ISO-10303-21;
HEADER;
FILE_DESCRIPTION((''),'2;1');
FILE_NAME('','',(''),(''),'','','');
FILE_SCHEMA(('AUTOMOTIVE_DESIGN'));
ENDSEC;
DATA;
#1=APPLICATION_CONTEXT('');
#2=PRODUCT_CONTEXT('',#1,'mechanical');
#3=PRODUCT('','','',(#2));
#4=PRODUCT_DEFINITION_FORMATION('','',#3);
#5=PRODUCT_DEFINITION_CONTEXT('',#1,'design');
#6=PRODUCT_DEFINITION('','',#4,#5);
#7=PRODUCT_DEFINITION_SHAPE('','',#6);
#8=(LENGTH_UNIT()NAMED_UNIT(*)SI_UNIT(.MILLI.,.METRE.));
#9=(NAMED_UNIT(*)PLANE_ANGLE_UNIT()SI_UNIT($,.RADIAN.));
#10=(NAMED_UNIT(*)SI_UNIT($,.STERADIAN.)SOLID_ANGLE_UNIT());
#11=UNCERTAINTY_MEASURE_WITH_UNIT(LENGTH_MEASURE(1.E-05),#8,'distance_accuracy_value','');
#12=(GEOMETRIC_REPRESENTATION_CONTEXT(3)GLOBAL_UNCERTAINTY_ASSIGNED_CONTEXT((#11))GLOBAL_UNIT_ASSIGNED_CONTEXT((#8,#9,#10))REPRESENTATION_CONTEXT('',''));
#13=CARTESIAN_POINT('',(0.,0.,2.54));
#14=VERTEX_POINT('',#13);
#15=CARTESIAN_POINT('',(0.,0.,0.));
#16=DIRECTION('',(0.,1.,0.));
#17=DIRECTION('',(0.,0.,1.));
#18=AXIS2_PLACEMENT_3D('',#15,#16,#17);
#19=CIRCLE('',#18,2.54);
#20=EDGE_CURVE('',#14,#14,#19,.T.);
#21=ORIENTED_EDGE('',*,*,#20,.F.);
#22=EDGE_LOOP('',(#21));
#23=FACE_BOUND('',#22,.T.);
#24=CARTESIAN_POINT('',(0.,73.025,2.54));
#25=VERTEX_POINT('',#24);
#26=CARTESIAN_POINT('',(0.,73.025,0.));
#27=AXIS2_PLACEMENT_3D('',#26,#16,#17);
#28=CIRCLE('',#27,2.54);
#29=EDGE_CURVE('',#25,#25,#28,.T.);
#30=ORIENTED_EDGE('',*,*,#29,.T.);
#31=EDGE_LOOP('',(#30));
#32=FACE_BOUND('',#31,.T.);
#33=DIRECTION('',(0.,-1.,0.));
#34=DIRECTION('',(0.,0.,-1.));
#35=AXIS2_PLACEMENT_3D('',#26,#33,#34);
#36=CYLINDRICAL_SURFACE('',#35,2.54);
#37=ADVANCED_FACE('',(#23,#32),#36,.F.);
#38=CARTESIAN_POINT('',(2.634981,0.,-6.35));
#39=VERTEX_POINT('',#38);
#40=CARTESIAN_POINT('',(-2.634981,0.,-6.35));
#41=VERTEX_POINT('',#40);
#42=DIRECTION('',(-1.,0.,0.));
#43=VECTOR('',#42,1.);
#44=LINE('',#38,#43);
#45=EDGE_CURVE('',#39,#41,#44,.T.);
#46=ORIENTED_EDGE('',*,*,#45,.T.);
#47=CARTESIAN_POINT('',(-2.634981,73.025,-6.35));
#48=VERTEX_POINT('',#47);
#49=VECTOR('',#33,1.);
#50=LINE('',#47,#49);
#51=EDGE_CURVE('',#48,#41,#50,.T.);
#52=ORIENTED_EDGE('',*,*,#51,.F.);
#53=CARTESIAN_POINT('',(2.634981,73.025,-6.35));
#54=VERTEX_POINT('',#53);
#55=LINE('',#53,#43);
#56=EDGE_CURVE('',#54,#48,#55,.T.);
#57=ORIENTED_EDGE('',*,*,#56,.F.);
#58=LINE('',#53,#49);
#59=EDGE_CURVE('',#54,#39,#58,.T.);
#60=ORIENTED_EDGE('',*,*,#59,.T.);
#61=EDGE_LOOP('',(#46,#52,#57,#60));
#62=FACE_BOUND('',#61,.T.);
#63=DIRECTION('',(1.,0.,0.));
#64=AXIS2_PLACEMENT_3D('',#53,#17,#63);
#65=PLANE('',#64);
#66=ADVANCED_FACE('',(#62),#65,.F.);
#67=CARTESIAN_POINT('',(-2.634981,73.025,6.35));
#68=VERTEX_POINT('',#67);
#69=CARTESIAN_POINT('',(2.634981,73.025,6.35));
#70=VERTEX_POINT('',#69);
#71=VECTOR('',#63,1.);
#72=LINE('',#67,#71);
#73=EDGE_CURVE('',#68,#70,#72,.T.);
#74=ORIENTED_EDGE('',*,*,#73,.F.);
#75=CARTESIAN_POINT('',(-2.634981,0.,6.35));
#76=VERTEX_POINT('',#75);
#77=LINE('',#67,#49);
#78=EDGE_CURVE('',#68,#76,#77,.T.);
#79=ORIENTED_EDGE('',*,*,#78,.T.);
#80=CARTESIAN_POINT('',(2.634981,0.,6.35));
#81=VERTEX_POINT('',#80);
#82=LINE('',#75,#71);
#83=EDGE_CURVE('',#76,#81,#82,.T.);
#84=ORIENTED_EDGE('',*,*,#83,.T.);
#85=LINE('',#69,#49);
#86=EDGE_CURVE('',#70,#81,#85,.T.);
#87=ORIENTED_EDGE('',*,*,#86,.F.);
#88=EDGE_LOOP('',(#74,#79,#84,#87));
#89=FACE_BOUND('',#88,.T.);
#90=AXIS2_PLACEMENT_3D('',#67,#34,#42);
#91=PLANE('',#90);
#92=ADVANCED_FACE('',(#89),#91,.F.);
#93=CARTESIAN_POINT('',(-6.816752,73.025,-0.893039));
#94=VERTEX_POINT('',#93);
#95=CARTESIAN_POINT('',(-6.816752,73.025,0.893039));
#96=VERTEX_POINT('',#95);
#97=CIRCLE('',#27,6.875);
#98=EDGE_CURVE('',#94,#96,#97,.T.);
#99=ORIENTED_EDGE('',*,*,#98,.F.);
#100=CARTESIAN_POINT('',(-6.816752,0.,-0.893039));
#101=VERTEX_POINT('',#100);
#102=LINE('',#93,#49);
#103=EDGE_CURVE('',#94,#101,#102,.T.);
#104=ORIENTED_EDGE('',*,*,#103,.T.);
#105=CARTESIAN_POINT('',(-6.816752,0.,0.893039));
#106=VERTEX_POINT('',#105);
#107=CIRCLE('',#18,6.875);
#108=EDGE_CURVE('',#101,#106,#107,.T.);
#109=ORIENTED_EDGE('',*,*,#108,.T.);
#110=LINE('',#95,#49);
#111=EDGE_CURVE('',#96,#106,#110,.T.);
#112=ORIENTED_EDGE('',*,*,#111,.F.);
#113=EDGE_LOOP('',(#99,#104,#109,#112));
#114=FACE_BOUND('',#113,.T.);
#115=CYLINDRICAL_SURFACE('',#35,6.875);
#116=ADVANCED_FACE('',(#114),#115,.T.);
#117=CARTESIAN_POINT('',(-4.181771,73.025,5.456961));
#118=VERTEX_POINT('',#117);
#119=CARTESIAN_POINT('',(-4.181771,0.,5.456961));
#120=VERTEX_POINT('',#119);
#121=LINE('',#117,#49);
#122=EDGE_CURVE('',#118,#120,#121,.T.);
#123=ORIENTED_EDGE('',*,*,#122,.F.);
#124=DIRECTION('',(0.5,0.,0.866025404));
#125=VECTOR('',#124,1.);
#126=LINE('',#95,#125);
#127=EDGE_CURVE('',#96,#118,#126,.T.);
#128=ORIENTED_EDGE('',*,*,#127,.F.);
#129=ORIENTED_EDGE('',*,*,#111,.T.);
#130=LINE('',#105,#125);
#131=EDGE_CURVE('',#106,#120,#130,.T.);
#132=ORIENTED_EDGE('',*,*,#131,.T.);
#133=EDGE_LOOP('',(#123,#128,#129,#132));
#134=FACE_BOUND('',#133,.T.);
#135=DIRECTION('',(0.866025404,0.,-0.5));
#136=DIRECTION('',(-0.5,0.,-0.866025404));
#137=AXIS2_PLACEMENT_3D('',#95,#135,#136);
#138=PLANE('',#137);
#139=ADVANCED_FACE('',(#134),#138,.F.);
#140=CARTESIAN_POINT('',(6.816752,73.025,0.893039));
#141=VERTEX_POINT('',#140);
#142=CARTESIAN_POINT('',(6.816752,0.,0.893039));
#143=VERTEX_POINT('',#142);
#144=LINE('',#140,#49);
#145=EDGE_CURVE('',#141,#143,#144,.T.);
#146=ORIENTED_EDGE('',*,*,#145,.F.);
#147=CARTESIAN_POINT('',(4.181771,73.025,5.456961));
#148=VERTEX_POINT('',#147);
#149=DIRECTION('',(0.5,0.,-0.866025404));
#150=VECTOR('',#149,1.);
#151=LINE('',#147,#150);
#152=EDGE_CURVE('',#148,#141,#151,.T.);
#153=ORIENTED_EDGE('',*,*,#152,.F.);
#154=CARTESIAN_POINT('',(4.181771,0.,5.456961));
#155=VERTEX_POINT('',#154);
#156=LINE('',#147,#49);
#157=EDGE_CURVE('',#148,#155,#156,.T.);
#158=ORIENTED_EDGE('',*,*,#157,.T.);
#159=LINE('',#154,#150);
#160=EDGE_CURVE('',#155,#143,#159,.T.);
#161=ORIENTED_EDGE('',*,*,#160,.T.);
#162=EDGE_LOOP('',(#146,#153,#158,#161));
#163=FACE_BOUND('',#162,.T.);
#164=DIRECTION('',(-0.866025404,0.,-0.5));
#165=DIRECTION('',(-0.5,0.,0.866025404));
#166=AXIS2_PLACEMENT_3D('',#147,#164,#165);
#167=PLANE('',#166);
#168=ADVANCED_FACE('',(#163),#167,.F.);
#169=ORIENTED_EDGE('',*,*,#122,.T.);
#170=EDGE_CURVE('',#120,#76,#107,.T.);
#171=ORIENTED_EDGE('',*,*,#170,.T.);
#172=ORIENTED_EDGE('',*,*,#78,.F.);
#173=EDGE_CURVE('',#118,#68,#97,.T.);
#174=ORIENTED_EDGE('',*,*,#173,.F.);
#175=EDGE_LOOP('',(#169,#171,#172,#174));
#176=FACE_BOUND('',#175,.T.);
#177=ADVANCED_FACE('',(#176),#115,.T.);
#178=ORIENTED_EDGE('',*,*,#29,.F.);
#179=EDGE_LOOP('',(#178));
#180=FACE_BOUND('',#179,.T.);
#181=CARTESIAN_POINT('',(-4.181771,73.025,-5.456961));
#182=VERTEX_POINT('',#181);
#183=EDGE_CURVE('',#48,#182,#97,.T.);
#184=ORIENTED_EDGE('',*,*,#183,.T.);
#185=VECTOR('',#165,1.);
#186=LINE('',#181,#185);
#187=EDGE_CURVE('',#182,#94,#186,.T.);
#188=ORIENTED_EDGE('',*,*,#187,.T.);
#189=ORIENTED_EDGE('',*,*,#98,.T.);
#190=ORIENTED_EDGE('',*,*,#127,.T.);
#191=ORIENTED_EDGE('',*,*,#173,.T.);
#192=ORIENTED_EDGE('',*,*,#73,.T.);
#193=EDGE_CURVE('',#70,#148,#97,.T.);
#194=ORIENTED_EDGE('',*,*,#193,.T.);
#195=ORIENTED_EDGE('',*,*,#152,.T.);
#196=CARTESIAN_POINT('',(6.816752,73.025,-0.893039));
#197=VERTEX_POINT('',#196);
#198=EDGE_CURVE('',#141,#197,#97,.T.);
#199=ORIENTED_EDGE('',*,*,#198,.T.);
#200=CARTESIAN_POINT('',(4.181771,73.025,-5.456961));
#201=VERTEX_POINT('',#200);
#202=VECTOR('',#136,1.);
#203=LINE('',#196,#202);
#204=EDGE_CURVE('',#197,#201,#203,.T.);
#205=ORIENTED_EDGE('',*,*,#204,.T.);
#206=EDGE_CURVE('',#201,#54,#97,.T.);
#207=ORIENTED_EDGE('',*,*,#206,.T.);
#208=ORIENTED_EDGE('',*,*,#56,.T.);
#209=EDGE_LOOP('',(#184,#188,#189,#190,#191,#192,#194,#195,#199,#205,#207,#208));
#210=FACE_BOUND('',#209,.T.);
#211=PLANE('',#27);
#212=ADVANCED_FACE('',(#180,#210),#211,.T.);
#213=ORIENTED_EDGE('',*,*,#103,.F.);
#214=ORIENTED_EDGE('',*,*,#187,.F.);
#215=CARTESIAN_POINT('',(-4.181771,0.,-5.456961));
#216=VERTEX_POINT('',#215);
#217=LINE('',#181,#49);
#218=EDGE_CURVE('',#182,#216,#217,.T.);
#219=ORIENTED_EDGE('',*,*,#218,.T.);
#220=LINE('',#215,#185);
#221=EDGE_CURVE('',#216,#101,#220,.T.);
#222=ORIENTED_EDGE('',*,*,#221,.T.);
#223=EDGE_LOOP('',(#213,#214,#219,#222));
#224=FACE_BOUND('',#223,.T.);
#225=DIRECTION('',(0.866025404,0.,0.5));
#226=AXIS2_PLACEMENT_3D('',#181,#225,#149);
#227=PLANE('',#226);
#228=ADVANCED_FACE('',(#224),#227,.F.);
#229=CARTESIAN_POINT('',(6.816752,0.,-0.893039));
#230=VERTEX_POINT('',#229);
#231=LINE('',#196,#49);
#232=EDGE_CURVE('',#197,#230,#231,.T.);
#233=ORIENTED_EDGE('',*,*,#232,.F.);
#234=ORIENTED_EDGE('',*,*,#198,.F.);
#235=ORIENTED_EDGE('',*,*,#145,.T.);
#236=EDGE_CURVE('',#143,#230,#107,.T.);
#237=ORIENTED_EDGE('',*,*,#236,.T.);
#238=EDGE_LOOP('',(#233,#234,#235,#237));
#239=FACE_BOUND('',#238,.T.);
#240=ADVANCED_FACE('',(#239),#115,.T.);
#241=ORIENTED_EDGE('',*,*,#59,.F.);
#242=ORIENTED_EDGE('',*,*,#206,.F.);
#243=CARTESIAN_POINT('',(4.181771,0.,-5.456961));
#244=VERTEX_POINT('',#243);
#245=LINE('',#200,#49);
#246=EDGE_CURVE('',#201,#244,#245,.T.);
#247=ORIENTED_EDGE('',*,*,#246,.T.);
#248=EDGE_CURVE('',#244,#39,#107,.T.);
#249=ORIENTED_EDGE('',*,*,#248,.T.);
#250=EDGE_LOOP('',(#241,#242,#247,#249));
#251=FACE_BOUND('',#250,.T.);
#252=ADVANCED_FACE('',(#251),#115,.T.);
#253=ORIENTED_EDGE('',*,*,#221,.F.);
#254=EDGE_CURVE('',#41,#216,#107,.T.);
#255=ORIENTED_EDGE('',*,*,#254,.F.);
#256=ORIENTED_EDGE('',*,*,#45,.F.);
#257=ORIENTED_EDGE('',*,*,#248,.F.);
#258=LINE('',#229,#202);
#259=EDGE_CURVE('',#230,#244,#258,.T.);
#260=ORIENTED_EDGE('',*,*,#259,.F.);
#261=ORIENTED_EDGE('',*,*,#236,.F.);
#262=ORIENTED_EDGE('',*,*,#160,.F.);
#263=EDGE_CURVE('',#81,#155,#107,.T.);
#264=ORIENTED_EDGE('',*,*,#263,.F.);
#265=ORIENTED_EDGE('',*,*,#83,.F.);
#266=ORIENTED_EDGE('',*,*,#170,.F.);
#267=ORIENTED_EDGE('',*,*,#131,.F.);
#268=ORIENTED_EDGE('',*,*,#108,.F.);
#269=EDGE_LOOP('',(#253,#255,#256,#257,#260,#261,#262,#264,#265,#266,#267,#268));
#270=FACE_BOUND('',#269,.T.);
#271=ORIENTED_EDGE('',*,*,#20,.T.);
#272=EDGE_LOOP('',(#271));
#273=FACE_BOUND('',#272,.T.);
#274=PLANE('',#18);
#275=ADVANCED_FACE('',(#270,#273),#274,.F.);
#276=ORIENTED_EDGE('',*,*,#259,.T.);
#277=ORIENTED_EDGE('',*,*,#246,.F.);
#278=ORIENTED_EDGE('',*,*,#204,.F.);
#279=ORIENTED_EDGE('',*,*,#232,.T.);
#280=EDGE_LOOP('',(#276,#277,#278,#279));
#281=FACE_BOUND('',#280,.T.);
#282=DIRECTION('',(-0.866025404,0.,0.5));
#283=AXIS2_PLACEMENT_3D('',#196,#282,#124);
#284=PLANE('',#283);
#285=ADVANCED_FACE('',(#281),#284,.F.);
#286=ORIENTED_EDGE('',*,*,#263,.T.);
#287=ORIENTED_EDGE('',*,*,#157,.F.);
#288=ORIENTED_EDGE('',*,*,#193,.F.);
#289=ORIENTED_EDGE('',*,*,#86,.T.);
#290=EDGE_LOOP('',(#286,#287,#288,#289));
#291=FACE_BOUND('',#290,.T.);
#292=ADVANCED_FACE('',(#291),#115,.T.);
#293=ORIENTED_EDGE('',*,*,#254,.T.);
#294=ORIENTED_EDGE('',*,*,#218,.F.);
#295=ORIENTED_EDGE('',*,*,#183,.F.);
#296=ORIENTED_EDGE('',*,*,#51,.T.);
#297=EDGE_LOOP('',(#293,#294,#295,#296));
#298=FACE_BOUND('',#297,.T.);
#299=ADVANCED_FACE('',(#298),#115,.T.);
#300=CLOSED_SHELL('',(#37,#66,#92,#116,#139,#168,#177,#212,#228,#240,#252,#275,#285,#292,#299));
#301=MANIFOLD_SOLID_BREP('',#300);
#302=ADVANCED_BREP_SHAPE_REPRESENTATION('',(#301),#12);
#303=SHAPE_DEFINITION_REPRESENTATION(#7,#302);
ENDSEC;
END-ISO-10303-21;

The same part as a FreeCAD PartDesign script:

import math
import FreeCAD as App
import Part
import Sketcher
Q = App.Units.Quantity

doc = App.newDocument("Part")
body = doc.addObject("PartDesign::Body", "Body")

sketch1 = doc.addObject("Sketcher::SketchObject", "Sketch")
body.addObject(sketch1)
sketch1.AttachmentSupport = (doc.XZ_Plane, [""])
sketch1.MapMode = "FlatFace"
sketch1.addGeometry([
    Part.LineSegment(App.Vector(4.181771, 5.456961, 0), App.Vector(6.816752, 0.893039, 0)),
    Part.ArcOfCircle(Part.Circle(App.Vector(0, 0, 0), App.Vector(0, 0, 1), 6.875), math.radians(-7.46362), math.radians(7.46362)),
    Part.LineSegment(App.Vector(6.816752, -0.893039, 0), App.Vector(4.181771, -5.456961, 0)),
    Part.ArcOfCircle(Part.Circle(App.Vector(0, 0, 0), App.Vector(0, 0, 1), 6.875), math.radians(-67.46362), math.radians(-52.53638)),
    Part.LineSegment(App.Vector(2.634981, -6.35, 0), App.Vector(-2.634981, -6.35, 0)),
    Part.ArcOfCircle(Part.Circle(App.Vector(0, 0, 0), App.Vector(0, 0, 1), 6.875), math.radians(-127.46362), math.radians(-112.53638)),
    Part.LineSegment(App.Vector(-4.181771, -5.456961, 0), App.Vector(-6.816752, -0.893039, 0)),
    Part.ArcOfCircle(Part.Circle(App.Vector(0, 0, 0), App.Vector(0, 0, 1), 6.875), math.radians(172.53638), math.radians(187.46362)),
    Part.LineSegment(App.Vector(-6.816752, 0.893039, 0), App.Vector(-4.181771, 5.456961, 0)),
    Part.ArcOfCircle(Part.Circle(App.Vector(0, 0, 0), App.Vector(0, 0, 1), 6.875), math.radians(112.53638), math.radians(127.46362)),
    Part.LineSegment(App.Vector(-2.634981, 6.35, 0), App.Vector(2.634981, 6.35, 0)),
    Part.ArcOfCircle(Part.Circle(App.Vector(0, 0, 0), App.Vector(0, 0, 1), 6.875), math.radians(52.53638), math.radians(67.46362)),
    Part.Circle(App.Vector(0, 0, 0), App.Vector(0, 0, 1), 2.54),
], False)
sketch1.addConstraint([
    Sketcher.Constraint("Coincident", 0, 2, 1, 2),
    Sketcher.Constraint("Coincident", 1, 1, 2, 1),
    Sketcher.Constraint("Coincident", 2, 2, 3, 2),
    Sketcher.Constraint("Coincident", 3, 1, 4, 1),
    Sketcher.Constraint("Coincident", 4, 2, 5, 2),
    Sketcher.Constraint("Coincident", 5, 1, 6, 1),
    Sketcher.Constraint("Coincident", 6, 2, 7, 2),
    Sketcher.Constraint("Coincident", 7, 1, 8, 1),
    Sketcher.Constraint("Coincident", 8, 2, 9, 2),
    Sketcher.Constraint("Coincident", 9, 1, 10, 1),
    Sketcher.Constraint("Coincident", 10, 2, 11, 2),
    Sketcher.Constraint("Coincident", 11, 1, 0, 1),
    Sketcher.Constraint("Horizontal", 4),
    Sketcher.Constraint("Horizontal", 10),
    Sketcher.Constraint("Coincident", 1, 3, -1, 1),
    Sketcher.Constraint("Coincident", 3, 3, -1, 1),
    Sketcher.Constraint("Coincident", 5, 3, -1, 1),
    Sketcher.Constraint("Coincident", 7, 3, -1, 1),
    Sketcher.Constraint("Coincident", 9, 3, -1, 1),
    Sketcher.Constraint("Coincident", 11, 3, -1, 1),
    Sketcher.Constraint("Coincident", 12, 3, -1, 1),
    Sketcher.Constraint("Equal", 1, 3),
    Sketcher.Constraint("Equal", 3, 5),
    Sketcher.Constraint("Equal", 5, 7),
    Sketcher.Constraint("Equal", 7, 9),
    Sketcher.Constraint("Equal", 9, 11),
    Sketcher.Constraint("Parallel", 0, 6),
    Sketcher.Constraint("Parallel", 2, 8),
    Sketcher.Constraint("Horizontal", 2, 2, 5, 1),
    Sketcher.Constraint("Horizontal", 1, 1, 6, 2),
    Sketcher.Constraint("Horizontal", 0, 2, 7, 1),
    Sketcher.Constraint("Vertical", 0, 2, 1, 1),
    Sketcher.Constraint("Vertical", 4, 2, 9, 1),
    Sketcher.Constraint("Diameter", 12, Q("0.2 in")),
    Sketcher.Constraint("Angle", 0, Q("-60 deg")),
    Sketcher.Constraint("DistanceY", 3, 1, -1, 1, Q("0.25 in")),
    Sketcher.Constraint("Radius", 1, 6.875),
    Sketcher.Constraint("DistanceY", 2, 2, 0, 2, Q("0.25 in")),
])
pad1 = doc.addObject("PartDesign::Pad", "Pad")
body.addObject(pad1)
pad1.Profile = sketch1
pad1.Length = Q("2.875 in")
pad1.Reversed = True

doc.recompute()
